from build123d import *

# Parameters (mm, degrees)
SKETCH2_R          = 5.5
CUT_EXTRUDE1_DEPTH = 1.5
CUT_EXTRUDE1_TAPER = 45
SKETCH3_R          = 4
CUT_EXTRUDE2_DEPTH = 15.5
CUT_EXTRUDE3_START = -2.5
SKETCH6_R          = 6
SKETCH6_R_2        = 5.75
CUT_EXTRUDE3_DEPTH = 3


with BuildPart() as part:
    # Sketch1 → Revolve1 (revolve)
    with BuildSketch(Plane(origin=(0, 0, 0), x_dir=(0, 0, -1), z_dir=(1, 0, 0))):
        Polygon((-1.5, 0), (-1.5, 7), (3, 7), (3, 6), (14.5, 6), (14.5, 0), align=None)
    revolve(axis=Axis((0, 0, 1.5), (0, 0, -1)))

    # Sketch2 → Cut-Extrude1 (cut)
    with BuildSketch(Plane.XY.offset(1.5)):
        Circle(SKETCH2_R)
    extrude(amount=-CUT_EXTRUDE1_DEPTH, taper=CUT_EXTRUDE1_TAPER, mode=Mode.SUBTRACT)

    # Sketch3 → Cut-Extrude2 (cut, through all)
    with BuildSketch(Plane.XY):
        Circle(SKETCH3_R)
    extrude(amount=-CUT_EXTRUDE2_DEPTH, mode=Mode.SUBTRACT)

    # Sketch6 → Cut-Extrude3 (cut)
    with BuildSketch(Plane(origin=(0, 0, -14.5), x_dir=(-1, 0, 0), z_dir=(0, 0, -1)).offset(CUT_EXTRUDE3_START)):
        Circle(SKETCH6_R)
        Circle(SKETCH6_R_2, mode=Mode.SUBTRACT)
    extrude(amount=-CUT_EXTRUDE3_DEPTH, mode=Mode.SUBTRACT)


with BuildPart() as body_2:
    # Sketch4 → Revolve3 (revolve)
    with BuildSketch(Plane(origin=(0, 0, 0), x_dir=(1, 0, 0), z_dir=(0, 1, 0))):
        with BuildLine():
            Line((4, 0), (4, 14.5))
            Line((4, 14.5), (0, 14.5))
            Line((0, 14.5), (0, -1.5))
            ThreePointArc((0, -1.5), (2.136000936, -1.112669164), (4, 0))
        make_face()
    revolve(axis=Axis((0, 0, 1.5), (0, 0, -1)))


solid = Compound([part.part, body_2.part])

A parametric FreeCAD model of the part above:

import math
import FreeCAD as App
import Part
import Sketcher
from FreeCAD import Vector
Q = App.Units.Quantity


def add_polygon(sketch, points):
    """Adds a closed chain of lines whose ends are joined by coincident constraints."""
    first, n = sketch.GeometryCount, len(points)
    for a, b in zip(points, points[1:] + points[:1]):
        sketch.addGeometry(Part.LineSegment(App.Vector(*a, 0), App.Vector(*b, 0)), False)
    for i in range(n):
        sketch.addConstraint(Sketcher.Constraint("Coincident", first + i, 2, first + (i + 1) % n, 1))

doc = App.newDocument("Part")
body = doc.addObject("PartDesign::Body", "Body")

sketch1 = body.newObject("Sketcher::SketchObject", "Sketch")
sketch1.AttachmentSupport = (doc.getObject("YZ_Plane"), [""])
sketch1.MapMode = "FlatFace"
add_polygon(sketch1, [(7, 1.5), (0, 1.5), (0, -14.5), (6, -14.5), (6, -3), (7, -3)])
sketch1.addConstraint(Sketcher.Constraint("Horizontal", 0))
sketch1.addConstraint(Sketcher.Constraint("Vertical", 1))
sketch1.addConstraint(Sketcher.Constraint("Horizontal", 2))
sketch1.addConstraint(Sketcher.Constraint("Vertical", 3))
sketch1.addConstraint(Sketcher.Constraint("Horizontal", 4))
sketch1.addConstraint(Sketcher.Constraint("Vertical", 5))
sketch1.addConstraint(Sketcher.Constraint("PointOnObject", 0, 2, -2))
sketch1.addConstraint(Sketcher.Constraint("DistanceX", 0, 2, 0, 1, Q("7 mm")))
sketch1.addConstraint(Sketcher.Constraint("DistanceX", 2, 1, 2, 2, Q("6 mm")))
sketch1.addConstraint(Sketcher.Constraint("DistanceY", 1, 2, 1, 1, Q("16 mm")))
sketch1.addConstraint(Sketcher.Constraint("DistanceY", 3, 1, 3, 2, Q("11.5 mm")))
sketch1.addConstraint(Sketcher.Constraint("DistanceY", 3, 2, -1, 1, Q("3 mm")))
revolution = body.newObject("PartDesign::Revolution", "Revolution")
revolution.Profile = sketch1
revolution.ReferenceAxis = (sketch1, ["V_Axis"])
revolution.Angle = 360

sketch2 = body.newObject("Sketcher::SketchObject", "Sketch001")
sketch2.AttachmentSupport = (doc.getObject("XY_Plane"), [""])
sketch2.MapMode = "FlatFace"
sketch2.AttachmentOffset = App.Placement(Vector(0, 0, 1.5), App.Rotation())
sketch2.addGeometry(Part.Circle(Vector(0, 0, 0), Vector(0, 0, 1), 6), False)
sketch2.addConstraint(Sketcher.Constraint("Coincident", 0, 3, -1, 1))
sketch2.addConstraint(Sketcher.Constraint("Diameter", 0, Q("11 mm")))
pocket1 = body.newObject("PartDesign::Pocket", "Pocket")
pocket1.Profile = sketch2
pocket1.Length = 1.5
pocket1.TaperAngle = -45

sketch3 = body.newObject("Sketcher::SketchObject", "Sketch002")
sketch3.AttachmentSupport = (doc.getObject("XY_Plane"), [""])
sketch3.MapMode = "FlatFace"
sketch3.addGeometry(Part.Circle(Vector(0, 0, 0), Vector(0, 0, 1), 4), False)
sketch3.addConstraint(Sketcher.Constraint("Coincident", 0, 3, -1, 1))
sketch3.addConstraint(Sketcher.Constraint("Diameter", 0, Q("8 mm")))
pocket2 = body.newObject("PartDesign::Pocket", "Pocket001")
pocket2.Profile = sketch3
pocket2.Type = "ThroughAll"

sketch4 = body.newObject("Sketcher::SketchObject", "Sketch003")
sketch4.AttachmentSupport = (doc.getObject("XY_Plane"), [""])
sketch4.MapMode = "FlatFace"
sketch4.AttachmentOffset = App.Placement(Vector(0, 0, -12), App.Rotation())
sketch4.addGeometry(Part.Circle(Vector(0, 0, 0), Vector(0, 0, 1), 6), False)
sketch4.addGeometry(Part.Circle(Vector(0, 0, 0), Vector(0, 0, 1), 6), False)
sketch4.addConstraint(Sketcher.Constraint("Coincident", 0, 3, -1, 1))
sketch4.addConstraint(Sketcher.Constraint("Coincident", 1, 3, -1, 1))
sketch4.addConstraint(Sketcher.Constraint("Diameter", 0, Q("12 mm")))
sketch4.addConstraint(Sketcher.Constraint("Diameter", 1, Q("11.5 mm")))
pocket3 = body.newObject("PartDesign::Pocket", "Pocket002")
pocket3.Profile = sketch4
pocket3.Length = 3
pocket3.Reversed = True
body2 = doc.addObject("PartDesign::Body", "Body001")

sketch5 = body2.newObject("Sketcher::SketchObject", "Sketch004")
sketch5.AttachmentSupport = (doc.getObject("XZ_Plane001"), [""])
sketch5.MapMode = "FlatFace"
sketch5.addGeometry(Part.LineSegment(Vector(4, 0, 0), Vector(4, -14.5, 0)), False)
sketch5.addGeometry(Part.LineSegment(Vector(4, -14.5, 0), Vector(0, -14.5, 0)), False)
sketch5.addGeometry(Part.LineSegment(Vector(0, -14.5, 0), Vector(0, 1.5, 0)), False)
sketch5.addGeometry(Part.ArcOfCircle(Part.Circle(Vector(0, -4.6, 0), Vector(0, 0, 1), 6.1), math.radians(49), math.radians(90)), False)
sketch5.addConstraint(Sketcher.Constraint("Coincident", 0, 2, 1, 1))
sketch5.addConstraint(Sketcher.Constraint("Coincident", 1, 2, 2, 1))
sketch5.addConstraint(Sketcher.Constraint("Coincident", 2, 2, 3, 2))
sketch5.addConstraint(Sketcher.Constraint("Coincident", 3, 1, 0, 1))
sketch5.addConstraint(Sketcher.Constraint("Vertical", 0))
sketch5.addConstraint(Sketcher.Constraint("Horizontal", 1))
sketch5.addConstraint(Sketcher.Constraint("Vertical", 2))
sketch5.addConstraint(Sketcher.Constraint("PointOnObject", 3, 3, -2))
sketch5.addConstraint(Sketcher.Constraint("PointOnObject", 1, 2, -2))
sketch5.addConstraint(Sketcher.Constraint("PointOnObject", 3, 1, -1))
sketch5.addConstraint(Sketcher.Constraint("DistanceX", 1, 2, 1, 1, Q("4 mm")))
sketch5.addConstraint(Sketcher.Constraint("DistanceY", 2, 1, 2, 2, Q("16 mm")))
sketch5.addConstraint(Sketcher.Constraint("DistanceY", 0, 2, 0, 1, Q("14.5 mm")))
revolution2 = body2.newObject("PartDesign::Revolution", "Revolution001")
revolution2.Profile = sketch5
revolution2.ReferenceAxis = (sketch5, ["V_Axis"])
revolution2.Angle = 360

doc.recompute()
